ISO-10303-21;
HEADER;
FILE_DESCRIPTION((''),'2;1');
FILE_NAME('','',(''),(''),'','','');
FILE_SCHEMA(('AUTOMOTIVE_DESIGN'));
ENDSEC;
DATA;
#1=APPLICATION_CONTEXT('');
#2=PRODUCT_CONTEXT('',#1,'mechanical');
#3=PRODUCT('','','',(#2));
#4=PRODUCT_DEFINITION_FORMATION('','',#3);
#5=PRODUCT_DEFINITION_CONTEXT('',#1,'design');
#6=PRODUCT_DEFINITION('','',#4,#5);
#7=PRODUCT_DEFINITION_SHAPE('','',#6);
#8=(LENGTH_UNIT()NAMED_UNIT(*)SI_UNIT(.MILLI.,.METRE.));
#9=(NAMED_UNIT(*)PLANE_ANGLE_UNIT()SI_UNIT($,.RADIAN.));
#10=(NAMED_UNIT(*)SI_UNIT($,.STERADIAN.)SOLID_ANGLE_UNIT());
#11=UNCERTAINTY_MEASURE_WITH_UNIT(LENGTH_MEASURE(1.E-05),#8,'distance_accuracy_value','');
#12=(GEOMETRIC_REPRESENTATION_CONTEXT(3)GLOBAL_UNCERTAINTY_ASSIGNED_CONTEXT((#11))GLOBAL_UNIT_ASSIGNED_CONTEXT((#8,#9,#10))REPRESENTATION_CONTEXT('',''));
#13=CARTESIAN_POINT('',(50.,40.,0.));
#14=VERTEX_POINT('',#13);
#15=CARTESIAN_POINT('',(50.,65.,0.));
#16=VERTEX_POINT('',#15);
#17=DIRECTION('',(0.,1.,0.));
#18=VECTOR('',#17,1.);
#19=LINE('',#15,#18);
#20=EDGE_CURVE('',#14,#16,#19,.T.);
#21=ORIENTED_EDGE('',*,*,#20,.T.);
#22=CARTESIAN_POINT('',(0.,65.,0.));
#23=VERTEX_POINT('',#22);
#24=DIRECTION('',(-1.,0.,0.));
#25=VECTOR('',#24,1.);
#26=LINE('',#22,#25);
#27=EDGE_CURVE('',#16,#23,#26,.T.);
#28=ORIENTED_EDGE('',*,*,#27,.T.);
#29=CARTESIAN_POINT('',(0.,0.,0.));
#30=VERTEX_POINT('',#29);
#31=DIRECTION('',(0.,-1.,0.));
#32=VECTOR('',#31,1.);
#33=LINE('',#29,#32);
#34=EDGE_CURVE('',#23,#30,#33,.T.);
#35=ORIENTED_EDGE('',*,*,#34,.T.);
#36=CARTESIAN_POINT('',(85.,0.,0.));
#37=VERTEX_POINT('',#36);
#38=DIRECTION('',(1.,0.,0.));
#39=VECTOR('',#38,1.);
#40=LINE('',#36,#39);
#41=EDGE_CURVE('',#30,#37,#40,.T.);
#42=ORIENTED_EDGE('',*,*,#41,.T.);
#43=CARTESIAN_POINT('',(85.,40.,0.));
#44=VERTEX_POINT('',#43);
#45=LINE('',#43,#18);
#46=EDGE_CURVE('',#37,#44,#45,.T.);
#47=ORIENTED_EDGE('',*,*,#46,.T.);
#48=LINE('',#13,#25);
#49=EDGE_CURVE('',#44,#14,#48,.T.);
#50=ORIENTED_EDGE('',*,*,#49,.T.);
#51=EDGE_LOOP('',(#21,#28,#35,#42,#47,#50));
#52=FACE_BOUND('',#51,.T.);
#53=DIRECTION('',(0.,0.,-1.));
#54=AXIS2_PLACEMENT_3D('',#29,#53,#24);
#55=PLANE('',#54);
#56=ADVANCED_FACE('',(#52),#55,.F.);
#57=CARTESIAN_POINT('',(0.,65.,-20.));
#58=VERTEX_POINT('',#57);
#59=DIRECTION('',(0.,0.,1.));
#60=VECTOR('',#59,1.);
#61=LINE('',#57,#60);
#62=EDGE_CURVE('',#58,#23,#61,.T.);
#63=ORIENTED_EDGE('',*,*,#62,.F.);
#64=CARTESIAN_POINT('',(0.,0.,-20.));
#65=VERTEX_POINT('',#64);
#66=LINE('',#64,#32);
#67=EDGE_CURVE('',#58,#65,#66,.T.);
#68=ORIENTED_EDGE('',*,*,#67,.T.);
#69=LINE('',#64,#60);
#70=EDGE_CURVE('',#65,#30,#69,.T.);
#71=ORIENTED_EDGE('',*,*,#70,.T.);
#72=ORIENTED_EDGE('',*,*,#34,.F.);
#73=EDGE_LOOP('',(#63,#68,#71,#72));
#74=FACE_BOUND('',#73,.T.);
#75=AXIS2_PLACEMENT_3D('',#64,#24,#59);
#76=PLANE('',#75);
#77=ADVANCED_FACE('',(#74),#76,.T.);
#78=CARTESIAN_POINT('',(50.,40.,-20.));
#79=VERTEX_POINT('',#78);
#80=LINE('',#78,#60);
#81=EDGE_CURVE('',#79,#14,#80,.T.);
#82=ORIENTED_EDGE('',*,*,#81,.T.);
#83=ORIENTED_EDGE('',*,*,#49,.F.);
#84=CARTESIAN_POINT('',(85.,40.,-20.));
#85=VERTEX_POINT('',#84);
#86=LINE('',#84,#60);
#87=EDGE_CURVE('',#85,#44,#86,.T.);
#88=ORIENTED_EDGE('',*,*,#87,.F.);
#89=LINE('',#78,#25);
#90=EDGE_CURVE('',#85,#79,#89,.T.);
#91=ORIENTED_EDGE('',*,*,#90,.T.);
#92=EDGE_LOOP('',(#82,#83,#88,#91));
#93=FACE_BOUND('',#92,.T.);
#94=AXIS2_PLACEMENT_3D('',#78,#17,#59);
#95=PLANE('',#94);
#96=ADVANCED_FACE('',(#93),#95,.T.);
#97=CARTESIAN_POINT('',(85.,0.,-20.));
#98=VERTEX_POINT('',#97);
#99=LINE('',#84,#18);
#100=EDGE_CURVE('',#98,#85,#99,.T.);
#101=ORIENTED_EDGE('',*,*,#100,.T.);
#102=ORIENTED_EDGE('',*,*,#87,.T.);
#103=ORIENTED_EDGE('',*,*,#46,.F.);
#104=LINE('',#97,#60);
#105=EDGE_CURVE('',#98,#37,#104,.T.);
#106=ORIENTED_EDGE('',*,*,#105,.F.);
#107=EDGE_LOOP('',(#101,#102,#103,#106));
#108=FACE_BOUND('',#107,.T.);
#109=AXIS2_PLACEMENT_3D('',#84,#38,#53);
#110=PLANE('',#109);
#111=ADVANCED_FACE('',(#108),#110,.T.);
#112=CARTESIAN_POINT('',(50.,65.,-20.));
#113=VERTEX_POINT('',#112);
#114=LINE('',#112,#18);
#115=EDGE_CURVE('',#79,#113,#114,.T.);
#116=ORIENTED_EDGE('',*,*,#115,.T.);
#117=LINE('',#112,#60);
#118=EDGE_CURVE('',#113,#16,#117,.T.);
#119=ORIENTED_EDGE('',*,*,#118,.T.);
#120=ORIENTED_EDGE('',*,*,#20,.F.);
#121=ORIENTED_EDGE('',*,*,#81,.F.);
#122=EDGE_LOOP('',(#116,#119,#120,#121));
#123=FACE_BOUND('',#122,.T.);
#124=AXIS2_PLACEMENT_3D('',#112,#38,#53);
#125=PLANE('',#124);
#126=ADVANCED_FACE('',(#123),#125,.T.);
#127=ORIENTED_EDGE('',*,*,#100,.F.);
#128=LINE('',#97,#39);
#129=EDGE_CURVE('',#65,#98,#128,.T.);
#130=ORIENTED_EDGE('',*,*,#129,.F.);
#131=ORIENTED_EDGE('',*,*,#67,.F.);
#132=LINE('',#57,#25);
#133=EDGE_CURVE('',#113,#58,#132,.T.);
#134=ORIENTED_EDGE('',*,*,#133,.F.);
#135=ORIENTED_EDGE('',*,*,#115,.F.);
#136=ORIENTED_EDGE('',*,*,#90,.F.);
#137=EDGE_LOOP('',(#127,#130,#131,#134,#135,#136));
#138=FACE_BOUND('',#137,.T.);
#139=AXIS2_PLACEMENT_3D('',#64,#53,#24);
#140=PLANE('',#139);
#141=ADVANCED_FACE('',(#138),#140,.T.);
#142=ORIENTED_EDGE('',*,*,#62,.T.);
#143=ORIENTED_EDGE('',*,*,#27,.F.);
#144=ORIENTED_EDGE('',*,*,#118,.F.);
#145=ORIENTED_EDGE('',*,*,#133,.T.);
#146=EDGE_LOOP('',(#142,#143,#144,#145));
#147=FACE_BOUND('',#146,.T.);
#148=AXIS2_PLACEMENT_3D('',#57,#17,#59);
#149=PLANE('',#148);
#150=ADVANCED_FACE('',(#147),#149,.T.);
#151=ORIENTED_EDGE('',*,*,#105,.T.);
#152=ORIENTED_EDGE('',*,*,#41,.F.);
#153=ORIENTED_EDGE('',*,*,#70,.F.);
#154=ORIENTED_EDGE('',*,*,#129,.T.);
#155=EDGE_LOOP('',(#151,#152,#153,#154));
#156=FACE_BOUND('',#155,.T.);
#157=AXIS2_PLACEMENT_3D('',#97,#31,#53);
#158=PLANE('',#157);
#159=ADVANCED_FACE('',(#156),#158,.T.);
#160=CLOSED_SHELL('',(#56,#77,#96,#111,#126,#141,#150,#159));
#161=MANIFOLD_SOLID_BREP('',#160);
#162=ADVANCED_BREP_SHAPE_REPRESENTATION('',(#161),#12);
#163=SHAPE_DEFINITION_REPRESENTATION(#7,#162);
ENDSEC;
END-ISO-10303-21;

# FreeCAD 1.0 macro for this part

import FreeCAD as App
import Part
import Sketcher

V = App.Vector
Q = App.Units.Quantity


def add_polygon(sketch, points):
    """Adds a closed chain of lines whose ends are joined by coincident constraints."""
    first, n = sketch.GeometryCount, len(points)
    for a, b in zip(points, points[1:] + points[:1]):
        sketch.addGeometry(Part.LineSegment(App.Vector(*a, 0), App.Vector(*b, 0)), False)
    for i in range(n):
        sketch.addConstraint(Sketcher.Constraint("Coincident", first + i, 2, first + (i + 1) % n, 1))

doc = App.newDocument("Part")
params = doc.addObject("Spreadsheet::Sheet", "Params")
for row, (alias, value) in enumerate([
    ("sketch1_width", "85 mm"),
    ("sketch1_width2", "35 mm"),
    ("sketch1_height", "65 mm"),
    ("sketch1_height2", "40 mm"),
    ("pad1_length", "20 mm"),
], start=1):
    params.set(f"A{row}", alias)
    params.set(f"B{row}", "=" + value)
    params.setAlias(f"B{row}", alias)

body = doc.addObject("PartDesign::Body", "Body")

sketch1 = body.newObject("Sketcher::SketchObject", "Sketch")
sketch1.AttachmentSupport = (doc.getObject("XY_Plane"), [""])
sketch1.MapMode = "FlatFace"
add_polygon(sketch1, [(0, 65), (0, 0), (85, 0), (85, 40), (50, 40), (50, 65)])
sketch1.addConstraint(Sketcher.Constraint("Vertical", 0))
sketch1.addConstraint(Sketcher.Constraint("Horizontal", 1))
sketch1.addConstraint(Sketcher.Constraint("Vertical", 2))
sketch1.addConstraint(Sketcher.Constraint("Horizontal", 3))
sketch1.addConstraint(Sketcher.Constraint("Vertical", 4))
sketch1.addConstraint(Sketcher.Constraint("Horizontal", 5))
sketch1.addConstraint(Sketcher.Constraint("Coincident", 0, 2, -1, 1))
sketch1.addConstraint(Sketcher.Constraint("DistanceX", 1, 1, 1, 2, Q("85 mm")))
sketch1.addConstraint(Sketcher.Constraint("DistanceX", 3, 2, 3, 1, Q("35 mm")))
sketch1.addConstraint(Sketcher.Constraint("DistanceY", 0, 2, 0, 1, Q("65 mm")))
sketch1.addConstraint(Sketcher.Constraint("DistanceY", 2, 1, 2, 2, Q("40 mm")))
sketch1.setExpression("Constraints[13]", "Params.sketch1_width")
sketch1.setExpression("Constraints[14]", "Params.sketch1_width2")
sketch1.setExpression("Constraints[15]", "Params.sketch1_height")
sketch1.setExpression("Constraints[16]", "Params.sketch1_height2")
pad1 = body.newObject("PartDesign::Pad", "Pad")
pad1.Profile = sketch1
pad1.setExpression("Length", "Params.pad1_length")
pad1.Reversed = True

doc.recompute()
